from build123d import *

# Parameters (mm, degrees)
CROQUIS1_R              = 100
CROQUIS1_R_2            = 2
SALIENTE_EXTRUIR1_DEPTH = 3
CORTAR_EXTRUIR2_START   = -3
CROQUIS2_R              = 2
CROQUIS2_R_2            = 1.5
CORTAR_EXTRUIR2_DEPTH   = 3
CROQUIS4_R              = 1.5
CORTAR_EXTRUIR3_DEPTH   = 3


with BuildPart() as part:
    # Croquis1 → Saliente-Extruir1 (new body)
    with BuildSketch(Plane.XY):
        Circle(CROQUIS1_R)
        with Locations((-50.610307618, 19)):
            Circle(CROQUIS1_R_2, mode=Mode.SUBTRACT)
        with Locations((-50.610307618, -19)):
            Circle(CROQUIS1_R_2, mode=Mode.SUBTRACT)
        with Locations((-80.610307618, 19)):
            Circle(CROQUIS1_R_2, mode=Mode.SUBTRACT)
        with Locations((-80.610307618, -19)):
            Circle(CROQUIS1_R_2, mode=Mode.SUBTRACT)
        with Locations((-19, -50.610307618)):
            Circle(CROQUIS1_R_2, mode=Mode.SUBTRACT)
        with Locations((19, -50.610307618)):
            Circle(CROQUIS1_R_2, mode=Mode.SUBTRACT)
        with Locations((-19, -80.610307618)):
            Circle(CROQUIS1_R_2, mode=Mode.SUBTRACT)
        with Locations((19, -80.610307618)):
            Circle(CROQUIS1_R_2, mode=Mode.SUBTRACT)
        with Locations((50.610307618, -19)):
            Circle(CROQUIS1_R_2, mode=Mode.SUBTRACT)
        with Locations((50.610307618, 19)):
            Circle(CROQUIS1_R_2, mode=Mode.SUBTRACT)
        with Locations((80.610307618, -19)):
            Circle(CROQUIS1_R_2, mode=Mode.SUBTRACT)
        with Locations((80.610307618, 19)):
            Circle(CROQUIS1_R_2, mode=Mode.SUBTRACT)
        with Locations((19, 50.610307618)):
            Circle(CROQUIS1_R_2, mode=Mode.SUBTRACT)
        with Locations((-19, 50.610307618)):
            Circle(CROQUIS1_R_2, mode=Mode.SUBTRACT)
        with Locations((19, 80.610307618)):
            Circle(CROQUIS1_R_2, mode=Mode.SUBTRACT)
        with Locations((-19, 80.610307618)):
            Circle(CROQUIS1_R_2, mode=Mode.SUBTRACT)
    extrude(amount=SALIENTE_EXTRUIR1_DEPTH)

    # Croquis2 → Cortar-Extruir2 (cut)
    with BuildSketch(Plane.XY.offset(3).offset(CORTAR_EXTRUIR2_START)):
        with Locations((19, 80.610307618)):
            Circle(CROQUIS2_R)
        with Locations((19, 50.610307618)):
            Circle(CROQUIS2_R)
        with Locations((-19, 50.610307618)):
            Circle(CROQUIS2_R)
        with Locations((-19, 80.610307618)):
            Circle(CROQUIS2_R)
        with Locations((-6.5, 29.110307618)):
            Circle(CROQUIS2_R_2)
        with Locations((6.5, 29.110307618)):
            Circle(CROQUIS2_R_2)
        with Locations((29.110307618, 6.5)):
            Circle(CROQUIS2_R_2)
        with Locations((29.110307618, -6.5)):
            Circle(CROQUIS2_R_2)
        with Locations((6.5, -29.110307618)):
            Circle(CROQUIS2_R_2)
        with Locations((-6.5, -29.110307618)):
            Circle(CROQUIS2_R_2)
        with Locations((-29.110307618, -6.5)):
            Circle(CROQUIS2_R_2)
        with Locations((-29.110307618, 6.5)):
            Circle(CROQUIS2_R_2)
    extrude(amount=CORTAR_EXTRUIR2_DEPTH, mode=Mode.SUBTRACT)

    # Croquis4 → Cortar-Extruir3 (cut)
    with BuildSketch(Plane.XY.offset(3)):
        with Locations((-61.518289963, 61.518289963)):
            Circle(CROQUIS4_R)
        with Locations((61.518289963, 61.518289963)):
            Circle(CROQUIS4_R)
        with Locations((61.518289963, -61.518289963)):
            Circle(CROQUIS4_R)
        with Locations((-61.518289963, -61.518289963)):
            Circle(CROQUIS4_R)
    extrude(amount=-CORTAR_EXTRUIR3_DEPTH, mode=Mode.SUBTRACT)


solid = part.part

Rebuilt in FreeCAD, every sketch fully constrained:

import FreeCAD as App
import Part
import Sketcher

doc = App.newDocument("Part")
body = doc.addObject("PartDesign::Body", "Body")

# Sketch on XY plane
sketch1 = doc.addObject("Sketcher::SketchObject", "Sketch")
body.addObject(sketch1)
sketch1.AttachmentSupport = (doc.XY_Plane, [""])
sketch1.MapMode = "FlatFace"
sketch1.addGeometry([
    Part.Circle(App.Vector(0, 0, 0), App.Vector(0, 0, 1), 100),  # 0
    Part.Circle(App.Vector(-19, -80.6, 0), App.Vector(0, 0, 1), 2),  # 1
    Part.Circle(App.Vector(-19, -50.6, 0), App.Vector(0, 0, 1), 2),  # 2
    Part.Circle(App.Vector(-80.6, -19, 0), App.Vector(0, 0, 1), 2),  # 3
    Part.Circle(App.Vector(-50.6, -19, 0), App.Vector(0, 0, 1), 2),  # 4
    Part.Circle(App.Vector(19, -80.6, 0), App.Vector(0, 0, 1), 2),  # 5
    Part.Circle(App.Vector(19, -50.6, 0), App.Vector(0, 0, 1), 2),  # 6
    Part.Circle(App.Vector(50.6, -19, 0), App.Vector(0, 0, 1), 2),  # 7
    Part.Circle(App.Vector(80.6, -19, 0), App.Vector(0, 0, 1), 2),  # 8
    Part.Circle(App.Vector(-80.6, 19, 0), App.Vector(0, 0, 1), 2),  # 9
    Part.Circle(App.Vector(-50.6, 19, 0), App.Vector(0, 0, 1), 2),  # 10
    Part.Circle(App.Vector(-19, 50.6, 0), App.Vector(0, 0, 1), 2),  # 11
    Part.Circle(App.Vector(-19, 80.6, 0), App.Vector(0, 0, 1), 2),  # 12
    Part.Circle(App.Vector(50.6, 19, 0), App.Vector(0, 0, 1), 2),  # 13
    Part.Circle(App.Vector(80.6, 19, 0), App.Vector(0, 0, 1), 2),  # 14
    Part.Circle(App.Vector(19, 50.6, 0), App.Vector(0, 0, 1), 2),  # 15
    Part.Circle(App.Vector(19, 80.6, 0), App.Vector(0, 0, 1), 2),  # 16
], False)
sketch1.addConstraint([
    Sketcher.Constraint("Coincident", 0, 3, -1, 1),
    Sketcher.Constraint("Equal", 1, 2),
    Sketcher.Constraint("Equal", 2, 3),
    Sketcher.Constraint("Equal", 3, 4),
    Sketcher.Constraint("Equal", 4, 5),
    Sketcher.Constraint("Equal", 5, 6),
    Sketcher.Constraint("Equal", 6, 7),
    Sketcher.Constraint("Equal", 7, 8),
    Sketcher.Constraint("Equal", 8, 9),
    Sketcher.Constraint("Equal", 9, 10),
    Sketcher.Constraint("Equal", 10, 11),
    Sketcher.Constraint("Equal", 11, 12),
    Sketcher.Constraint("Equal", 12, 13),
    Sketcher.Constraint("Equal", 13, 14),
    Sketcher.Constraint("Equal", 14, 15),
    Sketcher.Constraint("Equal", 15, 16),
    Sketcher.Constraint("Symmetric", 8, 3, 9, 3, -1, 1),
    Sketcher.Constraint("Symmetric", 7, 3, 10, 3, -1, 1),
    Sketcher.Constraint("Symmetric", 6, 3, 11, 3, -1, 1),
    Sketcher.Constraint("Symmetric", 5, 3, 12, 3, -1, 1),
    Sketcher.Constraint("Symmetric", 4, 3, 13, 3, -1, 1),
    Sketcher.Constraint("Symmetric", 3, 3, 14, 3, -1, 1),
    Sketcher.Constraint("Symmetric", 2, 3, 15, 3, -1, 1),
    Sketcher.Constraint("Symmetric", 1, 3, 16, 3, -1, 1),
    Sketcher.Constraint("Symmetric", 1, 3, 5, 3, -2),
    Sketcher.Constraint("Symmetric", 2, 3, 6, 3, -2),
    Sketcher.Constraint("Symmetric", 4, 3, 7, 3, -2),
    Sketcher.Constraint("Symmetric", 3, 3, 8, 3, -2),
    Sketcher.Constraint("Horizontal", 3, 3, 4, 3),
    Sketcher.Constraint("Vertical", 1, 3, 2, 3),
    Sketcher.Constraint("Diameter", 0, 200.0),
    Sketcher.Constraint("Diameter", 1, 4.0),
    Sketcher.Constraint("DistanceX", 1, 3, -1, 1, 19.0),
    Sketcher.Constraint("DistanceY", 3, 3, -1, 1, 19.0),
    Sketcher.Constraint("DistanceY", 1, 3, 2, 3, 30.0),
    Sketcher.Constraint("DistanceX", 3, 3, 4, 3, 30.0),
    Sketcher.Constraint("DistanceY", 1, 3, -1, 1, 80.610308),
    Sketcher.Constraint("DistanceX", 3, 3, -1, 1, 80.610308),
])
pad1 = doc.addObject("PartDesign::Pad", "Pad")
body.addObject(pad1)
pad1.Profile = sketch1
pad1.Length = 3

# Sketch on XY plane
sketch2 = doc.addObject("Sketcher::SketchObject", "Sketch001")
body.addObject(sketch2)
sketch2.AttachmentSupport = (doc.XY_Plane, [""])
sketch2.MapMode = "FlatFace"
sketch2.addGeometry([
    Part.Circle(App.Vector(19, 80.6, 0), App.Vector(0, 0, 1), 2),  # 0
    Part.Circle(App.Vector(19, 50.6, 0), App.Vector(0, 0, 1), 2),  # 1
    Part.Circle(App.Vector(-19, 50.6, 0), App.Vector(0, 0, 1), 2),  # 2
    Part.Circle(App.Vector(-19, 80.6, 0), App.Vector(0, 0, 1), 2),  # 3
    Part.Circle(App.Vector(-6.5, 29.1, 0), App.Vector(0, 0, 1), 1.5),  # 4
    Part.Circle(App.Vector(6.5, 29.1, 0), App.Vector(0, 0, 1), 1.5),  # 5
    Part.Circle(App.Vector(29.1, 6.5, 0), App.Vector(0, 0, 1), 1.5),  # 6
    Part.Circle(App.Vector(29.1, -6.5, 0), App.Vector(0, 0, 1), 1.5),  # 7
    Part.Circle(App.Vector(6.5, -29.1, 0), App.Vector(0, 0, 1), 1.5),  # 8
    Part.Circle(App.Vector(-6.5, -29.1, 0), App.Vector(0, 0, 1), 1.5),  # 9
    Part.Circle(App.Vector(-29.1, -6.5, 0), App.Vector(0, 0, 1), 1.5),  # 10
    Part.Circle(App.Vector(-29.1, 6.5, 0), App.Vector(0, 0, 1), 1.5),  # 11
], False)
sketch2.addConstraint([
    Sketcher.Constraint("Equal", 0, 1),
    Sketcher.Constraint("Equal", 1, 2),
    Sketcher.Constraint("Equal", 2, 3),
    Sketcher.Constraint("Equal", 4, 5),
    Sketcher.Constraint("Equal", 5, 6),
    Sketcher.Constraint("Equal", 6, 7),
    Sketcher.Constraint("Equal", 7, 8),
    Sketcher.Constraint("Equal", 8, 9),
    Sketcher.Constraint("Equal", 9, 10),
    Sketcher.Constraint("Equal", 10, 11),
    Sketcher.Constraint("Symmetric", 4, 3, 8, 3, -1, 1),
    Sketcher.Constraint("Symmetric", 5, 3, 9, 3, -1, 1),
    Sketcher.Constraint("Symmetric", 6, 3, 10, 3, -1, 1),
    Sketcher.Constraint("Symmetric", 7, 3, 11, 3, -1, 1),
    Sketcher.Constraint("Symmetric", 1, 3, 2, 3, -2),
    Sketcher.Constraint("Symmetric", 0, 3, 3, 3, -2),
    Sketcher.Constraint("Symmetric", 4, 3, 5, 3, -2),
    Sketcher.Constraint("Symmetric", 7, 3, 10, 3, -2),
    Sketcher.Constraint("Vertical", 0, 3, 1, 3),
    Sketcher.Constraint("Diameter", 0, 4.0),
    Sketcher.Constraint("Diameter", 4, 3.0),
    Sketcher.Constraint("DistanceX", -1, 1, 0, 3, 19.0),
    Sketcher.Constraint("DistanceY", 1, 3, 0, 3, 30.0),
    Sketcher.Constraint("DistanceX", 4, 3, 5, 3, 13.0),
    Sketcher.Constraint("DistanceY", 7, 3, 6, 3, 13.0),
    Sketcher.Constraint("DistanceY", 4, 3, 2, 3, 21.5),
    Sketcher.Constraint("DistanceY", -1, 1, 0, 3, 80.610308),
    Sketcher.Constraint("DistanceX", -1, 1, 6, 3, 29.110308),
])
pocket1 = doc.addObject("PartDesign::Pocket", "Pocket")
body.addObject(pocket1)
pocket1.Profile = sketch2
pocket1.Length = 3
pocket1.Reversed = True

# Sketch on XY plane
sketch3 = doc.addObject("Sketcher::SketchObject", "Sketch002")
body.addObject(sketch3)
sketch3.AttachmentSupport = (doc.XY_Plane, [""])
sketch3.MapMode = "FlatFace"
sketch3.AttachmentOffset = App.Placement(App.Vector(0, 0, 3), App.Rotation())
sketch3.addGeometry([
    Part.Circle(App.Vector(-61.5, 61.5, 0), App.Vector(0, 0, 1), 1.5),
    Part.Circle(App.Vector(61.5, 61.5, 0), App.Vector(0, 0, 1), 1.5),
    Part.Circle(App.Vector(61.5, -61.5, 0), App.Vector(0, 0, 1), 1.5),
    Part.Circle(App.Vector(-61.5, -61.5, 0), App.Vector(0, 0, 1), 1.5),
], False)
sketch3.addConstraint([
    Sketcher.Constraint("Equal", 0, 1),
    Sketcher.Constraint("Equal", 1, 2),
    Sketcher.Constraint("Equal", 2, 3),
    Sketcher.Constraint("Symmetric", 0, 3, 2, 3, -1, 1),
    Sketcher.Constraint("Symmetric", 1, 3, 3, 3, -1, 1),
    Sketcher.Constraint("Symmetric", 0, 3, 1, 3, -2),
    Sketcher.Constraint("Diameter", 0, 3.0),
    Sketcher.Constraint("DistanceX", 0, 3, -1, 1, 61.51829),
    Sketcher.Constraint("DistanceY", -1, 1, 0, 3, 61.51829),
])
pocket2 = doc.addObject("PartDesign::Pocket", "Pocket001")
body.addObject(pocket2)
pocket2.Profile = sketch3
pocket2.Length = 3

doc.recompute()
